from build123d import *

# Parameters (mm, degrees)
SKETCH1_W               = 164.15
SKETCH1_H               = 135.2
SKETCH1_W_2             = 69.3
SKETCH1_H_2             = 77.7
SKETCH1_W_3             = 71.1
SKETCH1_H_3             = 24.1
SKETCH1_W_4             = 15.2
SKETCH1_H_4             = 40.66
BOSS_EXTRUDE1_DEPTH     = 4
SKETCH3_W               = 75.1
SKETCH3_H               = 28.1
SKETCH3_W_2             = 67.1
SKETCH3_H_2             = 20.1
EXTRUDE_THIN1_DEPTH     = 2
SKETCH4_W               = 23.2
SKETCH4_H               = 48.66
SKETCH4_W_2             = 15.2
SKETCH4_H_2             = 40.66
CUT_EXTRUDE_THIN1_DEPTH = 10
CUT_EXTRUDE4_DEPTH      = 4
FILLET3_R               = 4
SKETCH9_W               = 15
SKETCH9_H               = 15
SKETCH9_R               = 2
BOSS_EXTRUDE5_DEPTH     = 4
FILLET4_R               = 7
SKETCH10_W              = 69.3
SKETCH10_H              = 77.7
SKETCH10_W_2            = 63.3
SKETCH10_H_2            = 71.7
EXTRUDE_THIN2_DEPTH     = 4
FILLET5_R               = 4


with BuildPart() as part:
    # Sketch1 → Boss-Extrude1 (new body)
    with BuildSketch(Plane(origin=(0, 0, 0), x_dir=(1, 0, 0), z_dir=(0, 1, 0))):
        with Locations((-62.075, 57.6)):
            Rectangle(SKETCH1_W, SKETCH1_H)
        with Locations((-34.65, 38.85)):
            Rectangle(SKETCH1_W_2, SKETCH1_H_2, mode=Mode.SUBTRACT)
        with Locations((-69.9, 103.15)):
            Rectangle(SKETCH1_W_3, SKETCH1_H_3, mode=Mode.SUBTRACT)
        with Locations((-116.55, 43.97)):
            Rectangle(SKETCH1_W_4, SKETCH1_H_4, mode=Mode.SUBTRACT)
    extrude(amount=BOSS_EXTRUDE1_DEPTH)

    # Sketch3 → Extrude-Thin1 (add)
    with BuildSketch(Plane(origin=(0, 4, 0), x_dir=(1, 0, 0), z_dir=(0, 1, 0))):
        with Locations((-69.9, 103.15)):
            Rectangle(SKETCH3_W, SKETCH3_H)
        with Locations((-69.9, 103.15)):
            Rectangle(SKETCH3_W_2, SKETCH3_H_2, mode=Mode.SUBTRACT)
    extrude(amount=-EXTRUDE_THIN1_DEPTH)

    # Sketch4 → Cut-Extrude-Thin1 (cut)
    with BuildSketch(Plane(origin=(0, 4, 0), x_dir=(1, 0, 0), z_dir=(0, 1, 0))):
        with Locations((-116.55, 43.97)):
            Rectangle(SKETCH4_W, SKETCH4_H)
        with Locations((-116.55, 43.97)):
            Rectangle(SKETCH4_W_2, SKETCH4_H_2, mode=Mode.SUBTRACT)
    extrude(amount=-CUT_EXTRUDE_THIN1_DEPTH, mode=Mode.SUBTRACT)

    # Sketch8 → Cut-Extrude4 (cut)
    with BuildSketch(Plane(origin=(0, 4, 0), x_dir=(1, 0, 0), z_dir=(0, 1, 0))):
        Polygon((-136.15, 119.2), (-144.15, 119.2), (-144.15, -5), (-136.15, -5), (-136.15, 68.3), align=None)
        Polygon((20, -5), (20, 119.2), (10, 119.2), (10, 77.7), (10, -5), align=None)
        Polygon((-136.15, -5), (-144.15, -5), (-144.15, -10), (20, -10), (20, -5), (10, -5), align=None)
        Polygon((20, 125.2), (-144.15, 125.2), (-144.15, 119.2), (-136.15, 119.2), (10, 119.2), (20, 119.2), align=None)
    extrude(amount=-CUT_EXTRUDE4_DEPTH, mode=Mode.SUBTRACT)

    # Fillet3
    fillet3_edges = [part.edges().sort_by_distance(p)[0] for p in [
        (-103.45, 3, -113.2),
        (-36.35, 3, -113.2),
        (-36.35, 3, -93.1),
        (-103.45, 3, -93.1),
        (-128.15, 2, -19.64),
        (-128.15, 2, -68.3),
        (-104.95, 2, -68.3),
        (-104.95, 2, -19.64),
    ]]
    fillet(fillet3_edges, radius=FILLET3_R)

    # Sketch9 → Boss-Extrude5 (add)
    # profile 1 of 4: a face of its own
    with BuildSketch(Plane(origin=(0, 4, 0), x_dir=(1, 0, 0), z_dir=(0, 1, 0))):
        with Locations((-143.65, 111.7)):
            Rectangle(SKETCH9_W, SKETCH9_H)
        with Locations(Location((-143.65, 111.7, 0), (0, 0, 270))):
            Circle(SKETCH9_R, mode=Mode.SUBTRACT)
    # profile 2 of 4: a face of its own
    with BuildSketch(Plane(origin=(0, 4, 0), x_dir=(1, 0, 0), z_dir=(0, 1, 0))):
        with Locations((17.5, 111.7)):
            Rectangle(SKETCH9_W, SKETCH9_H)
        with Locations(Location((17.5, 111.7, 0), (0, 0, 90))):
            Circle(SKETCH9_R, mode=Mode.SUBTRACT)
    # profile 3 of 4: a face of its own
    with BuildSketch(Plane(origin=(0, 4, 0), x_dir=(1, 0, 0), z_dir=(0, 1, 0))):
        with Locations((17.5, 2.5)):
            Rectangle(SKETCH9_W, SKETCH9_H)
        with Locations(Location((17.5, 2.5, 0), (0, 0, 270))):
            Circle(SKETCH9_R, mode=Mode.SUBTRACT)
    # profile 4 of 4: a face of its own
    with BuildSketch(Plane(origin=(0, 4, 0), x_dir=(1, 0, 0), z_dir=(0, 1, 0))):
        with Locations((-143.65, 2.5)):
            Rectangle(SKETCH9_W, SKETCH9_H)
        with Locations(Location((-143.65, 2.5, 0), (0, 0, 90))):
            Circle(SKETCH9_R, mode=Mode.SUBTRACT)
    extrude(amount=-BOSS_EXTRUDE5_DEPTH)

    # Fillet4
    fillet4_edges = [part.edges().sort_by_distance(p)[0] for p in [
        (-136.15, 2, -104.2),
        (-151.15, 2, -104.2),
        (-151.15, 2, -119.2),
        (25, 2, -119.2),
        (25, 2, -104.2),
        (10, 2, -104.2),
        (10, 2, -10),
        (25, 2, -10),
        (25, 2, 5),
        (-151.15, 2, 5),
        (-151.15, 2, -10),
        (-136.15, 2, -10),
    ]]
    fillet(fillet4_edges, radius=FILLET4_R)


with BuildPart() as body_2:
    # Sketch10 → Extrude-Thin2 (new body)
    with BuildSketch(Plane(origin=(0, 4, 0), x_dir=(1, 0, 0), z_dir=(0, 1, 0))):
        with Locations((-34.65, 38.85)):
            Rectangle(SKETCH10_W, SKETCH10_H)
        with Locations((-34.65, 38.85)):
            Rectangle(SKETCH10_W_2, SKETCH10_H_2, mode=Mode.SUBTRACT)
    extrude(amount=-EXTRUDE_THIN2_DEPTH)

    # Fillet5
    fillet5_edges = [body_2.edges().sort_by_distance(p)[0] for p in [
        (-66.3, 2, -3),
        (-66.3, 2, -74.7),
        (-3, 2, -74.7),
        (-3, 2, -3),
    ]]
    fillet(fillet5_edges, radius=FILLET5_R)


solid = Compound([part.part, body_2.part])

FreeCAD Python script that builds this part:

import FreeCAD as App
import Part
import Sketcher

V = App.Vector
Q = App.Units.Quantity


def edges_at(feature, points):
    """Names of the edges that pass closest to the given points."""
    edges = feature.Shape.Edges
    near = lambda p: min(range(len(edges)), key=lambda i: edges[i].distToShape(Part.Vertex(*p))[0])
    return sorted({f"Edge{near(p) + 1}" for p in points})


def add_polygon(sketch, points):
    """Adds a closed chain of lines whose ends are joined by coincident constraints."""
    first, n = sketch.GeometryCount, len(points)
    for a, b in zip(points, points[1:] + points[:1]):
        sketch.addGeometry(Part.LineSegment(App.Vector(*a, 0), App.Vector(*b, 0)), False)
    for i in range(n):
        sketch.addConstraint(Sketcher.Constraint("Coincident", first + i, 2, first + (i + 1) % n, 1))

doc = App.newDocument("Part")
body = doc.addObject("PartDesign::Body", "Body")

# Sketch on XZ plane
sketch1 = body.newObject("Sketcher::SketchObject", "Sketch")
sketch1.AttachmentSupport = (doc.getObject("XZ_Plane"), [""])
sketch1.MapMode = "FlatFace"
add_polygon(sketch1, [(-144.15, -125.2), (-144.15, 10), (20, 10), (20, -125.2)])  # lines 0-3
add_polygon(sketch1, [(-108.95, -23.64), (-124.15, -23.64), (-124.15, -64.3), (-108.95, -64.3)])  # lines 4-7
add_polygon(sketch1, [(0, 0), (-69.3, 0), (-69.3, -77.7), (0, -77.7)])  # lines 8-11
add_polygon(sketch1, [(-34.35, -91.1), (-105.45, -91.1), (-105.45, -115.2), (-34.35, -115.2)])  # lines 12-15
sketch1.addConstraint(Sketcher.Constraint("Vertical", 0))
sketch1.addConstraint(Sketcher.Constraint("Horizontal", 1))
sketch1.addConstraint(Sketcher.Constraint("Vertical", 2))
sketch1.addConstraint(Sketcher.Constraint("Horizontal", 3))
sketch1.addConstraint(Sketcher.Constraint("Horizontal", 4))
sketch1.addConstraint(Sketcher.Constraint("Vertical", 5))
sketch1.addConstraint(Sketcher.Constraint("Horizontal", 6))
sketch1.addConstraint(Sketcher.Constraint("Vertical", 7))
sketch1.addConstraint(Sketcher.Constraint("Horizontal", 8))
sketch1.addConstraint(Sketcher.Constraint("Vertical", 9))
sketch1.addConstraint(Sketcher.Constraint("Horizontal", 10))
sketch1.addConstraint(Sketcher.Constraint("Vertical", 11))
sketch1.addConstraint(Sketcher.Constraint("Horizontal", 12))
sketch1.addConstraint(Sketcher.Constraint("Vertical", 13))
sketch1.addConstraint(Sketcher.Constraint("Horizontal", 14))
sketch1.addConstraint(Sketcher.Constraint("Vertical", 15))
sketch1.addConstraint(Sketcher.Constraint("Coincident", 11, 2, -1, 1))
sketch1.addConstraint(Sketcher.Constraint("DistanceX", 4, 2, 4, 1, Q("15.2 mm")))
sketch1.addConstraint(Sketcher.Constraint("DistanceX", 8, 2, 8, 1, Q("69.3 mm")))
sketch1.addConstraint(Sketcher.Constraint("DistanceX", 12, 2, 12, 1, Q("71.1 mm")))
sketch1.addConstraint(Sketcher.Constraint("DistanceY", 0, 1, 0, 2, Q("135.2 mm")))
sketch1.addConstraint(Sketcher.Constraint("DistanceY", 9, 2, 9, 1, Q("77.7 mm")))
sketch1.addConstraint(Sketcher.Constraint("DistanceY", 13, 2, 13, 1, Q("24.1 mm")))
sketch1.addConstraint(Sketcher.Constraint("DistanceY", -1, 1, 0, 2, Q("10 mm")))
sketch1.addConstraint(Sketcher.Constraint("DistanceX", -1, 1, 1, 2, Q("20 mm")))
sketch1.addConstraint(Sketcher.Constraint("DistanceX", 0, 2, 4, 2, Q("20 mm")))
sketch1.addConstraint(Sketcher.Constraint("DistanceY", 3, 2, 13, 2, Q("10 mm")))
sketch1.addConstraint(Sketcher.Constraint("DistanceX", 1, 1, 1, 2, Q("164.15 mm")))
sketch1.addConstraint(Sketcher.Constraint("DistanceY", 5, 2, 5, 1, Q("40.66 mm")))
sketch1.addConstraint(Sketcher.Constraint("DistanceY", 5, 2, -1, 1, Q("64.3 mm")))
sketch1.addConstraint(Sketcher.Constraint("DistanceX", 6, 2, 12, 2, Q("3.5 mm")))
pad1 = body.newObject("PartDesign::Pad", "Pad")
pad1.Profile = sketch1
pad1.Length = 4
pad1.Reversed = True

# Sketch on XZ plane
sketch2 = body.newObject("Sketcher::SketchObject", "Sketch001")
sketch2.AttachmentSupport = (doc.getObject("XZ_Plane"), [""])
sketch2.MapMode = "FlatFace"
sketch2.AttachmentOffset = App.Placement(V(0, 0, -4), App.Rotation())
add_polygon(sketch2, [(-107.45, -117.2), (-107.45, -89.1), (-32.35, -89.1), (-32.35, -117.2)])  # lines 0-3
add_polygon(sketch2, [(-36.35, -93.1), (-103.45, -93.1), (-103.45, -113.2), (-36.35, -113.2)])  # lines 4-7
sketch2.addConstraint(Sketcher.Constraint("Vertical", 0))
sketch2.addConstraint(Sketcher.Constraint("Horizontal", 1))
sketch2.addConstraint(Sketcher.Constraint("Vertical", 2))
sketch2.addConstraint(Sketcher.Constraint("Horizontal", 3))
sketch2.addConstraint(Sketcher.Constraint("Horizontal", 4))
sketch2.addConstraint(Sketcher.Constraint("Vertical", 5))
sketch2.addConstraint(Sketcher.Constraint("Horizontal", 6))
sketch2.addConstraint(Sketcher.Constraint("Vertical", 7))
sketch2.addConstraint(Sketcher.Constraint("DistanceX", 1, 1, 1, 2, Q("75.1 mm")))
sketch2.addConstraint(Sketcher.Constraint("DistanceX", 4, 2, 4, 1, Q("67.1 mm")))
sketch2.addConstraint(Sketcher.Constraint("DistanceY", 0, 1, 0, 2, Q("28.1 mm")))
sketch2.addConstraint(Sketcher.Constraint("DistanceY", 5, 2, 5, 1, Q("20.1 mm")))
sketch2.addConstraint(Sketcher.Constraint("DistanceX", 0, 2, 4, 2, Q("4 mm")))
sketch2.addConstraint(Sketcher.Constraint("DistanceY", 4, 2, 0, 2, Q("4 mm")))
sketch2.addConstraint(Sketcher.Constraint("DistanceY", 0, 2, -1, 1, Q("89.1 mm")))
sketch2.addConstraint(Sketcher.Constraint("DistanceX", 0, 2, -1, 1, Q("107.45 mm")))
pad2 = body.newObject("PartDesign::Pad", "Pad001")
pad2.Profile = sketch2
pad2.Length = 2

# Sketch on XZ plane
sketch3 = body.newObject("Sketcher::SketchObject", "Sketch002")
sketch3.AttachmentSupport = (doc.getObject("XZ_Plane"), [""])
sketch3.MapMode = "FlatFace"
sketch3.AttachmentOffset = App.Placement(V(0, 0, -4), App.Rotation())
add_polygon(sketch3, [(-128.15, -68.3), (-128.15, -19.64), (-104.95, -19.64), (-104.95, -68.3)])  # lines 0-3
add_polygon(sketch3, [(-108.95, -23.64), (-124.15, -23.64), (-124.15, -64.3), (-108.95, -64.3)])  # lines 4-7
sketch3.addConstraint(Sketcher.Constraint("Vertical", 0))
sketch3.addConstraint(Sketcher.Constraint("Horizontal", 1))
sketch3.addConstraint(Sketcher.Constraint("Vertical", 2))
sketch3.addConstraint(Sketcher.Constraint("Horizontal", 3))
sketch3.addConstraint(Sketcher.Constraint("Horizontal", 4))
sketch3.addConstraint(Sketcher.Constraint("Vertical", 5))
sketch3.addConstraint(Sketcher.Constraint("Horizontal", 6))
sketch3.addConstraint(Sketcher.Constraint("Vertical", 7))
sketch3.addConstraint(Sketcher.Constraint("DistanceX", 1, 1, 1, 2, Q("23.2 mm")))
sketch3.addConstraint(Sketcher.Constraint("DistanceX", 4, 2, 4, 1, Q("15.2 mm")))
sketch3.addConstraint(Sketcher.Constraint("DistanceX", 0, 2, 4, 2, Q("4 mm")))
sketch3.addConstraint(Sketcher.Constraint("DistanceY", 4, 2, 0, 2, Q("4 mm")))
sketch3.addConstraint(Sketcher.Constraint("DistanceY", 3, 2, 5, 2, Q("4 mm")))
sketch3.addConstraint(Sketcher.Constraint("DistanceY", 0, 1, 0, 2, Q("48.66 mm")))
sketch3.addConstraint(Sketcher.Constraint("DistanceY", 2, 2, -1, 1, Q("68.3 mm")))
sketch3.addConstraint(Sketcher.Constraint("DistanceX", 0, 2, -1, 1, Q("128.15 mm")))
pocket1 = body.newObject("PartDesign::Pocket", "Pocket")
pocket1.Profile = sketch3
pocket1.Length = 10
pocket1.Reversed = True

# Sketch on XZ plane
sketch4 = body.newObject("Sketcher::SketchObject", "Sketch003")
sketch4.AttachmentSupport = (doc.getObject("XZ_Plane"), [""])
sketch4.MapMode = "FlatFace"
sketch4.AttachmentOffset = App.Placement(V(0, 0, -4), App.Rotation())
add_polygon(sketch4, [(-144.15, 10), (20, 10), (20, -125.2), (-144.15, -125.2)])  # lines 0-3
add_polygon(sketch4, [(10, -119.2), (10, 5), (-136.15, 5), (-136.15, -119.2)])  # lines 4-7
sketch4.addConstraint(Sketcher.Constraint("Horizontal", 0))
sketch4.addConstraint(Sketcher.Constraint("Vertical", 1))
sketch4.addConstraint(Sketcher.Constraint("Horizontal", 2))
sketch4.addConstraint(Sketcher.Constraint("Vertical", 3))
sketch4.addConstraint(Sketcher.Constraint("Vertical", 4))
sketch4.addConstraint(Sketcher.Constraint("Horizontal", 5))
sketch4.addConstraint(Sketcher.Constraint("Vertical", 6))
sketch4.addConstraint(Sketcher.Constraint("Horizontal", 7))
sketch4.addConstraint(Sketcher.Constraint("DistanceY", 1, 2, 1, 1, Q("135.2 mm")))
sketch4.addConstraint(Sketcher.Constraint("DistanceY", 4, 1, 4, 2, Q("124.2 mm")))
sketch4.addConstraint(Sketcher.Constraint("DistanceX", -1, 1, 0, 2, Q("20 mm")))
sketch4.addConstraint(Sketcher.Constraint("DistanceY", -1, 1, 0, 2, Q("10 mm")))
sketch4.addConstraint(Sketcher.Constraint("DistanceX", -1, 1, 4, 2, Q("10 mm")))
sketch4.addConstraint(Sketcher.Constraint("DistanceY", -1, 1, 4, 2, Q("5 mm")))
sketch4.addConstraint(Sketcher.Constraint("DistanceX", 3, 2, 5, 2, Q("8 mm")))
sketch4.addConstraint(Sketcher.Constraint("DistanceX", 0, 1, 0, 2, Q("164.15 mm")))
pocket2 = body.newObject("PartDesign::Pocket", "Pocket001")
pocket2.Profile = sketch4
pocket2.Length = 4
pocket2.Reversed = True
doc.recompute()

fillet = body.newObject("PartDesign::Fillet", "Fillet")
fillet.Base = (pocket2, edges_at(pocket2, [
    (-103.45, 3, -113.2),
    (-36.35, 3, -113.2),
    (-36.35, 3, -93.1),
    (-103.45, 3, -93.1),
    (-128.15, 2, -19.64),
    (-128.15, 2, -68.3),
    (-104.95, 2, -68.3),
    (-104.95, 2, -19.64),
]))
fillet.Radius = 4

# Sketch on XZ plane
sketch5 = body.newObject("Sketcher::SketchObject", "Sketch004")
sketch5.AttachmentSupport = (doc.getObject("XZ_Plane"), [""])
sketch5.MapMode = "FlatFace"
sketch5.AttachmentOffset = App.Placement(V(0, 0, -4), App.Rotation())
add_polygon(sketch5, [(-151.15, -119.2), (-151.15, -104.2), (-136.15, -104.2), (-136.15, -119.2)])  # lines 0-3
sketch5.addGeometry(Part.Circle(V(-143.65, -111.7, 0), V(0, 0, 1), 2), False)  # 4
add_polygon(sketch5, [(10, -119.2), (10, -104.2), (25, -104.2), (25, -119.2)])  # lines 5-8
sketch5.addGeometry(Part.Circle(V(17.5, -111.7, 0), V(0, 0, 1), 2), False)  # 9
add_polygon(sketch5, [(10, -10), (10, 5), (25, 5), (25, -10)])  # lines 10-13
sketch5.addGeometry(Part.Circle(V(17.5, -2.5, 0), V(0, 0, 1), 2), False)  # 14
add_polygon(sketch5, [(-151.15, -10), (-151.15, 5), (-136.15, 5), (-136.15, -10)])  # lines 15-18
sketch5.addGeometry(Part.Circle(V(-143.65, -2.5, 0), V(0, 0, 1), 2), False)  # 19
sketch5.addConstraint(Sketcher.Constraint("Vertical", 0))
sketch5.addConstraint(Sketcher.Constraint("Horizontal", 1))
sketch5.addConstraint(Sketcher.Constraint("Vertical", 2))
sketch5.addConstraint(Sketcher.Constraint("Horizontal", 3))
sketch5.addConstraint(Sketcher.Constraint("Vertical", 5))
sketch5.addConstraint(Sketcher.Constraint("Horizontal", 6))
sketch5.addConstraint(Sketcher.Constraint("Vertical", 7))
sketch5.addConstraint(Sketcher.Constraint("Horizontal", 8))
sketch5.addConstraint(Sketcher.Constraint("Vertical", 10))
sketch5.addConstraint(Sketcher.Constraint("Horizontal", 11))
sketch5.addConstraint(Sketcher.Constraint("Vertical", 12))
sketch5.addConstraint(Sketcher.Constraint("Horizontal", 13))
sketch5.addConstraint(Sketcher.Constraint("Vertical", 15))
sketch5.addConstraint(Sketcher.Constraint("Horizontal", 16))
sketch5.addConstraint(Sketcher.Constraint("Vertical", 17))
sketch5.addConstraint(Sketcher.Constraint("Horizontal", 18))
sketch5.addConstraint(Sketcher.Constraint("Equal", 4, 9))
sketch5.addConstraint(Sketcher.Constraint("Equal", 9, 14))
sketch5.addConstraint(Sketcher.Constraint("Equal", 14, 19))
sketch5.addConstraint(Sketcher.Constraint("Horizontal", 4, 3, 9, 3))
sketch5.addConstraint(Sketcher.Constraint("Horizontal", 14, 3, 19, 3))
sketch5.addConstraint(Sketcher.Constraint("Horizontal", 1, 2, 5, 2))
sketch5.addConstraint(Sketcher.Constraint("Horizontal", 3, 2, 7, 2))
sketch5.addConstraint(Sketcher.Constraint("Horizontal", 11, 2, 15, 2))
sketch5.addConstraint(Sketcher.Constraint("Horizontal", 13, 2, 17, 2))
sketch5.addConstraint(Sketcher.Constraint("Vertical", 9, 3, 14, 3))
sketch5.addConstraint(Sketcher.Constraint("Vertical", 4, 3, 19, 3))
sketch5.addConstraint(Sketcher.Constraint("Vertical", 8, 2, 10, 2))
sketch5.addConstraint(Sketcher.Constraint("Vertical", 7, 2, 11, 2))
sketch5.addConstraint(Sketcher.Constraint("Vertical", 3, 2, 15, 2))
sketch5.addConstraint(Sketcher.Constraint("Vertical", 2, 2, 16, 2))
sketch5.addConstraint(Sketcher.Constraint("Equal", 3, 6))
sketch5.addConstraint(Sketcher.Constraint("Equal", 18, 0))
sketch5.addConstraint(Sketcher.Constraint("Equal", 7, 10))
sketch5.addConstraint(Sketcher.Constraint("Diameter", 4, Q("4 mm")))
sketch5.addConstraint(Sketcher.Constraint("DistanceX", 1, 1, 1, 2, Q("15 mm")))
sketch5.addConstraint(Sketcher.Constraint("DistanceX", -1, 1, 5, 2, Q("10 mm")))
sketch5.addConstraint(Sketcher.Constraint("DistanceY", -1, 1, 10, 2, Q("5 mm")))
sketch5.addConstraint(Sketcher.Constraint("DistanceY", 4, 3, -1, 1, Q("111.7 mm")))
sketch5.addConstraint(Sketcher.Constraint("DistanceX", -1, 1, 9, 3, Q("17.5 mm")))
sketch5.addConstraint(Sketcher.Constraint("DistanceY", 14, 3, -1, 1, Q("2.5 mm")))
sketch5.addConstraint(Sketcher.Constraint("DistanceY", 0, 2, -1, 1, Q("104.2 mm")))
sketch5.addConstraint(Sketcher.Constraint("DistanceX", 0, 2, 4, 3, Q("7.5 mm")))
sketch5.addConstraint(Sketcher.Constraint("DistanceX", 4, 3, -1, 1, Q("143.65 mm")))
pad3 = body.newObject("PartDesign::Pad", "Pad002")
pad3.Profile = sketch5
pad3.Length = 4
doc.recompute()

fillet2 = body.newObject("PartDesign::Fillet", "Fillet001")
fillet2.Base = (pad3, edges_at(pad3, [
    (-136.15, 2, -104.2),
    (-151.15, 2, -104.2),
    (-151.15, 2, -119.2),
    (25, 2, -119.2),
    (25, 2, -104.2),
    (10, 2, -104.2),
    (10, 2, -10),
    (25, 2, -10),
    (25, 2, 5),
    (-151.15, 2, 5),
    (-151.15, 2, -10),
    (-136.15, 2, -10),
]))
fillet2.Radius = 7
body2 = doc.addObject("PartDesign::Body", "Body001")

# Sketch on XZ plane
sketch6 = body2.newObject("Sketcher::SketchObject", "Sketch005")
sketch6.AttachmentSupport = (doc.getObject("XZ_Plane001"), [""])
sketch6.MapMode = "FlatFace"
sketch6.AttachmentOffset = App.Placement(V(0, 0, -4), App.Rotation())
add_polygon(sketch6, [(-69.3, -77.7), (-69.3, 0), (0, 0), (0, -77.7)])  # lines 0-3
add_polygon(sketch6, [(-3, -3), (-66.3, -3), (-66.3, -74.7), (-3, -74.7)])  # lines 4-7
sketch6.addConstraint(Sketcher.Constraint("Vertical", 0))
sketch6.addConstraint(Sketcher.Constraint("Horizontal", 1))
sketch6.addConstraint(Sketcher.Constraint("Vertical", 2))
sketch6.addConstraint(Sketcher.Constraint("Horizontal", 3))
sketch6.addConstraint(Sketcher.Constraint("Horizontal", 4))
sketch6.addConstraint(Sketcher.Constraint("Vertical", 5))
sketch6.addConstraint(Sketcher.Constraint("Horizontal", 6))
sketch6.addConstraint(Sketcher.Constraint("Vertical", 7))
sketch6.addConstraint(Sketcher.Constraint("Coincident", 1, 2, -1, 1))
sketch6.addConstraint(Sketcher.Constraint("DistanceX", 1, 1, 1, 2, Q("69.3 mm")))
sketch6.addConstraint(Sketcher.Constraint("DistanceX", 4, 2, 4, 1, Q("63.3 mm")))
sketch6.addConstraint(Sketcher.Constraint("DistanceY", 0, 1, 0, 2, Q("77.7 mm")))
sketch6.addConstraint(Sketcher.Constraint("DistanceY", 5, 2, 5, 1, Q("71.7 mm")))
sketch6.addConstraint(Sketcher.Constraint("DistanceY", 4, 2, -1, 1, Q("3 mm")))
sketch6.addConstraint(Sketcher.Constraint("DistanceX", 6, 2, -1, 1, Q("3 mm")))
pad4 = body2.newObject("PartDesign::Pad", "Pad003")
pad4.Profile = sketch6
pad4.Length = 4
doc.recompute()

fillet3 = body2.newObject("PartDesign::Fillet", "Fillet002")
fillet3.Base = (pad4, edges_at(pad4, [
    (-66.3, 2, -3),
    (-66.3, 2, -74.7),
    (-3, 2, -74.7),
    (-3, 2, -3),
]))
fillet3.Radius = 4

doc.recompute()
